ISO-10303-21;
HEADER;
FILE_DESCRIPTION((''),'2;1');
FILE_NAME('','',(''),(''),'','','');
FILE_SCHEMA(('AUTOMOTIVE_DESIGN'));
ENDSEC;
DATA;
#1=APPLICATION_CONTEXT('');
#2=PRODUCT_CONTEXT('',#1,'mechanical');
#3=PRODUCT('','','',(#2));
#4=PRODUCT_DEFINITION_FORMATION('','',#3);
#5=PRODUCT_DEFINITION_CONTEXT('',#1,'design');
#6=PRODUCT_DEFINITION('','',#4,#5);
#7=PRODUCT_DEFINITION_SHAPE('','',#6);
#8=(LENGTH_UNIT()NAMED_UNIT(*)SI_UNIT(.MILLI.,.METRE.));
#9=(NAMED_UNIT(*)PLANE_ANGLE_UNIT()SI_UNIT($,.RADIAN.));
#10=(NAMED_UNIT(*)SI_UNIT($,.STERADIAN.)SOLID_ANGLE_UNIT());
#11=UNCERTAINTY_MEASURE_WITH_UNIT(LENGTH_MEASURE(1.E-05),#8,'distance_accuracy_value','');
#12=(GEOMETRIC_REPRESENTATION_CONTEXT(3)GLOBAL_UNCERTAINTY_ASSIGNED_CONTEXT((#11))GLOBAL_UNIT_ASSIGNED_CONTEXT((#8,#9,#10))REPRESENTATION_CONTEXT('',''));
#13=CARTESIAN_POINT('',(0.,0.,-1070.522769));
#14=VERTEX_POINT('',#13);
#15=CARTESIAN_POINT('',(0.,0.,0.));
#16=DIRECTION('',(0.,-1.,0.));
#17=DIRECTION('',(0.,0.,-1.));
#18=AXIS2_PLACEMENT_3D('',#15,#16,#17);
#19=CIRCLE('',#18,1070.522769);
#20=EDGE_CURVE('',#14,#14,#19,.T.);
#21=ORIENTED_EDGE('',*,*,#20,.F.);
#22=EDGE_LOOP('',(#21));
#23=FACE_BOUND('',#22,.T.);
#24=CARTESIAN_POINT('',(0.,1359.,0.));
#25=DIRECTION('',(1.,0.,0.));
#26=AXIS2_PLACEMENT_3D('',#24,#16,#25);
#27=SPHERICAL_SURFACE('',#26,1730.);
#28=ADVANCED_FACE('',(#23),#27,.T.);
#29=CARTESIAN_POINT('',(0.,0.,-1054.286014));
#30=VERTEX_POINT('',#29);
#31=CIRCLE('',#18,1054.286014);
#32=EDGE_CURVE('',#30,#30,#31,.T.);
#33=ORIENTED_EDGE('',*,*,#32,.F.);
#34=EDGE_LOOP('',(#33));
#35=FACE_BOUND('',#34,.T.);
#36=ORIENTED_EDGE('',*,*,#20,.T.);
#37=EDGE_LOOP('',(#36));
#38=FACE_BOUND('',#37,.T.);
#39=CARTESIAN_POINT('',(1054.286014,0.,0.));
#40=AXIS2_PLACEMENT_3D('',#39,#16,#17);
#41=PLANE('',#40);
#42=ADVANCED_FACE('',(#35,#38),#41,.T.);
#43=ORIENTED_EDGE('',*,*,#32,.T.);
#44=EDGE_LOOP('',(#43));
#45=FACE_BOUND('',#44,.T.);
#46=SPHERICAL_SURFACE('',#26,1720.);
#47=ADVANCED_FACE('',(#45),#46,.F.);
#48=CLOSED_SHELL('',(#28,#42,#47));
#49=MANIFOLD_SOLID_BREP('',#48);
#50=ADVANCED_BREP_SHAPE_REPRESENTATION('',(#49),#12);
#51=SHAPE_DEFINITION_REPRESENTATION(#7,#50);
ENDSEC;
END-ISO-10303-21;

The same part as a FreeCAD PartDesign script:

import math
import FreeCAD as App
import Part
import Sketcher

doc = App.newDocument("Part")
body = doc.addObject("PartDesign::Body", "Body")

sketch1 = body.newObject("Sketcher::SketchObject", "Sketch")
sketch1.AttachmentSupport = (doc.getObject("XY_Plane"), [""])
sketch1.MapMode = "FlatFace"
sketch1.addGeometry([
    Part.LineSegment(App.Vector(1054, 0, 0), App.Vector(1071, 0, 0)),
    Part.ArcOfCircle(Part.Circle(App.Vector(0, 1359, 0), App.Vector(0, 0, 1), 1730), math.radians(-52), math.radians(90)),
    Part.LineSegment(App.Vector(0, 3089, 0), App.Vector(0, 3079, 0)),
    Part.ArcOfCircle(Part.Circle(App.Vector(0, 1359, 0), App.Vector(0, 0, 1), 1720), math.radians(-52), math.radians(90)),
], False)
sketch1.addConstraint([
    Sketcher.Constraint("Coincident", 0, 2, 1, 1),
    Sketcher.Constraint("Coincident", 1, 2, 2, 1),
    Sketcher.Constraint("Coincident", 2, 2, 3, 2),
    Sketcher.Constraint("Coincident", 3, 1, 0, 1),
    Sketcher.Constraint("Horizontal", 0),
    Sketcher.Constraint("Vertical", 2),
    Sketcher.Constraint("Coincident", 3, 3, 1, 3),
    Sketcher.Constraint("PointOnObject", 1, 3, -2),
    Sketcher.Constraint("PointOnObject", 0, 2, -1),
    Sketcher.Constraint("PointOnObject", 2, 2, -2),
    Sketcher.Constraint("Radius", 1, 1730.0),
    Sketcher.Constraint("Radius", 3, 1720.0),
    Sketcher.Constraint("DistanceY", -1, 1, 1, 3, 1359.0),
])
revolution = body.newObject("PartDesign::Revolution", "Revolution")
revolution.Profile = sketch1
revolution.ReferenceAxis = (sketch1, ["V_Axis"])
revolution.Angle = 360

doc.recompute()
